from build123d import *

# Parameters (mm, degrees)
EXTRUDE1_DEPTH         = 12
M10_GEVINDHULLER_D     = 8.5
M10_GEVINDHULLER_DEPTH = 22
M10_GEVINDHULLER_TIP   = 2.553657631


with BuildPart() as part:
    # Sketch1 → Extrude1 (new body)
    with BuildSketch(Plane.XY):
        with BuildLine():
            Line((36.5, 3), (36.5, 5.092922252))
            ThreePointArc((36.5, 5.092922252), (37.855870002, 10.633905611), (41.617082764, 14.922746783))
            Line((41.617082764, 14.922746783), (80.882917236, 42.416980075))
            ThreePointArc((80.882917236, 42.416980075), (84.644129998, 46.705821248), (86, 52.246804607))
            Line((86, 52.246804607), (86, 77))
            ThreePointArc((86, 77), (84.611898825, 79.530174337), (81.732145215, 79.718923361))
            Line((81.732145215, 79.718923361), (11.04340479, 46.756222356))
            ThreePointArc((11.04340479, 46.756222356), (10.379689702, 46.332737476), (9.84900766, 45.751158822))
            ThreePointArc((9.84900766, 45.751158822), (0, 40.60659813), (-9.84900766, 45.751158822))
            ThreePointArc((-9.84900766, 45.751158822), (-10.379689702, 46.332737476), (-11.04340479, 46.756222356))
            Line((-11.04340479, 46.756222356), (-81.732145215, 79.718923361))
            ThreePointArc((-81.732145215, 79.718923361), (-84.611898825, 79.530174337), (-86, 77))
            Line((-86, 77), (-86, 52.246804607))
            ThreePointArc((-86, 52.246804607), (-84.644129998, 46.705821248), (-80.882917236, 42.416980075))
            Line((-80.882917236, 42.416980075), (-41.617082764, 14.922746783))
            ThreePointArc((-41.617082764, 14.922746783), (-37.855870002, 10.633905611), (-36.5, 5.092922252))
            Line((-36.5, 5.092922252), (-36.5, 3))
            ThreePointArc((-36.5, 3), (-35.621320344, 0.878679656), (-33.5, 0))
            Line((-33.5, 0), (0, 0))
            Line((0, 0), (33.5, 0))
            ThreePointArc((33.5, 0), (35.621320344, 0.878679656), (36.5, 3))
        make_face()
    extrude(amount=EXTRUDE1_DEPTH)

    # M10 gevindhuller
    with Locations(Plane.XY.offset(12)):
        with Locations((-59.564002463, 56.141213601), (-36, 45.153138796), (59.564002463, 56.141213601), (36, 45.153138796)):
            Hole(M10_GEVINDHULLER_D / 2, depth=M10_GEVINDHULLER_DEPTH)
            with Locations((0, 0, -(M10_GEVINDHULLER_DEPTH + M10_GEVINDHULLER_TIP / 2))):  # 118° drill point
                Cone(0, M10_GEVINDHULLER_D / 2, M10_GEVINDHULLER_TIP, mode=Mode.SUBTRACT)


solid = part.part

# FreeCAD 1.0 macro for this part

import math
import FreeCAD as App
import Part
import Sketcher
from FreeCAD import Vector
Q = App.Units.Quantity

doc = App.newDocument("Part")
body = doc.addObject("PartDesign::Body", "Body")

# Sketch on XY plane
sketch1 = body.newObject("Sketcher::SketchObject", "Sketch")
sketch1.AttachmentSupport = (doc.getObject("XY_Plane"), [""])
sketch1.MapMode = "FlatFace"
sketch1.addGeometry([
    Part.LineSegment(Vector(36.5, 3, 0), Vector(36.5, 5.1, 0)),  # 0
    Part.ArcOfCircle(Part.Circle(Vector(48.5, 5.1, 0), Vector(0, 0, 1), 12), math.radians(125), math.radians(180)),  # 1
    Part.LineSegment(Vector(41.6, 14.9, 0), Vector(80.9, 42.4, 0)),  # 2
    Part.ArcOfCircle(Part.Circle(Vector(74, 52.2, 0), Vector(0, 0, 1), 12), math.radians(-55), math.radians(0)),  # 3
    Part.LineSegment(Vector(86, 52.2, 0), Vector(86, 77, 0)),  # 4
    Part.ArcOfCircle(Part.Circle(Vector(83, 77, 0), Vector(0, 0, 1), 3), math.radians(0), math.radians(115)),  # 5
    Part.LineSegment(Vector(81.7, 79.7, 0), Vector(11, 46.8, 0)),  # 6
    Part.ArcOfCircle(Part.Circle(Vector(12.3, 44, 0), Vector(0, 0, 1), 3), math.radians(115), math.radians(145)),  # 7
    Part.ArcOfCircle(Part.Circle(Vector(0, 52.6, 0), Vector(0, 0, 1), 12), math.radians(-145), math.radians(-35)),  # 8
    Part.ArcOfCircle(Part.Circle(Vector(-12.3, 44, 0), Vector(0, 0, 1), 3), math.radians(35), math.radians(65)),  # 9
    Part.LineSegment(Vector(-11, 46.8, 0), Vector(-81.7, 79.7, 0)),  # 10
    Part.ArcOfCircle(Part.Circle(Vector(-83, 77, 0), Vector(0, 0, 1), 3), math.radians(65), math.radians(180)),  # 11
    Part.LineSegment(Vector(-86, 77, 0), Vector(-86, 52.2, 0)),  # 12
    Part.ArcOfCircle(Part.Circle(Vector(-74, 52.2, 0), Vector(0, 0, 1), 12), math.radians(-180), math.radians(-125)),  # 13
    Part.LineSegment(Vector(-80.9, 42.4, 0), Vector(-41.6, 14.9, 0)),  # 14
    Part.ArcOfCircle(Part.Circle(Vector(-48.5, 5.1, 0), Vector(0, 0, 1), 12), math.radians(0), math.radians(55)),  # 15
    Part.LineSegment(Vector(-36.5, 5.1, 0), Vector(-36.5, 3, 0)),  # 16
    Part.ArcOfCircle(Part.Circle(Vector(-33.5, 3, 0), Vector(0, 0, 1), 3), math.radians(180), math.radians(270)),  # 17
    Part.LineSegment(Vector(-33.5, 0, 0), Vector(33.5, 0, 0)),  # 18
    Part.ArcOfCircle(Part.Circle(Vector(33.5, 3, 0), Vector(0, 0, 1), 3), math.radians(-90), math.radians(0)),  # 19
], False)
sketch1.addConstraint([
    Sketcher.Constraint("Tangent", 0, 2, 1, 2),
    Sketcher.Constraint("Tangent", 1, 1, 2, 1),
    Sketcher.Constraint("Tangent", 2, 2, 3, 1),
    Sketcher.Constraint("Tangent", 3, 2, 4, 1),
    Sketcher.Constraint("Tangent", 4, 2, 5, 1),
    Sketcher.Constraint("Tangent", 5, 2, 6, 1),
    Sketcher.Constraint("Tangent", 6, 2, 7, 1),
    Sketcher.Constraint("Tangent", 7, 2, 8, 2),
    Sketcher.Constraint("Tangent", 8, 1, 9, 1),
    Sketcher.Constraint("Tangent", 9, 2, 10, 1),
    Sketcher.Constraint("Tangent", 10, 2, 11, 1),
    Sketcher.Constraint("Tangent", 11, 2, 12, 1),
    Sketcher.Constraint("Tangent", 12, 2, 13, 1),
    Sketcher.Constraint("Tangent", 13, 2, 14, 1),
    Sketcher.Constraint("Tangent", 14, 2, 15, 2),
    Sketcher.Constraint("Tangent", 15, 1, 16, 1),
    Sketcher.Constraint("Tangent", 16, 2, 17, 1),
    Sketcher.Constraint("Tangent", 17, 2, 18, 1),
    Sketcher.Constraint("Tangent", 18, 2, 19, 1),
    Sketcher.Constraint("Tangent", 19, 2, 0, 1),
    Sketcher.Constraint("Vertical", 0),
    Sketcher.Constraint("Vertical", 4),
    Sketcher.Constraint("Vertical", 12),
    Sketcher.Constraint("Vertical", 16),
    Sketcher.Constraint("Horizontal", 18),
    Sketcher.Constraint("Equal", 1, 3),
    Sketcher.Constraint("Equal", 5, 7),
    Sketcher.Constraint("Equal", 3, 8),
    Sketcher.Constraint("Equal", 7, 9),
    Sketcher.Constraint("Equal", 9, 11),
    Sketcher.Constraint("Equal", 8, 13),
    Sketcher.Constraint("Equal", 13, 15),
    Sketcher.Constraint("Equal", 11, 17),
    Sketcher.Constraint("Equal", 17, 19),
    Sketcher.Constraint("Symmetric", 17, 2, 18, 2, -1, 1),
    Sketcher.Constraint("Symmetric", 7, 3, 9, 3, -2),
    Sketcher.Constraint("Symmetric", 5, 3, 11, 3, -2),
    Sketcher.Constraint("Symmetric", 2, 2, 13, 2, -2),
    Sketcher.Constraint("Radius", 1, Q("12 mm")),
    Sketcher.Constraint("Radius", 5, Q("3 mm")),
    Sketcher.Constraint("DistanceX", 18, 1, 18, 2, Q("67 mm")),
    Sketcher.Constraint("Angle", 2, Q("35 deg")),
    Sketcher.Constraint("Angle", 6, Q("-155 deg")),
    Sketcher.Constraint("DistanceX", -1, 1, 3, 3, Q("74 mm")),
    Sketcher.Constraint("DistanceY", -1, 1, 5, 3, Q("77 mm")),
    Sketcher.Constraint("DistanceY", -1, 1, 7, 3, Q("44.037299 mm")),
    Sketcher.Constraint("DistanceY", 0, 2, 6, 2, Q("41.6633 mm")),
])
pad1 = body.newObject("PartDesign::Pad", "Pad")
pad1.Profile = sketch1
pad1.Length = 12

# Sketch on XY plane
sketch2 = body.newObject("Sketcher::SketchObject", "Sketch001")
sketch2.AttachmentSupport = (doc.getObject("XY_Plane"), [""])
sketch2.MapMode = "FlatFace"
sketch2.AttachmentOffset = App.Placement(Vector(0, 0, 12), App.Rotation())
sketch2.addGeometry([
    Part.Circle(Vector(-59.6, 56.1, 0), Vector(0, 0, 1), 4.2),
    Part.Circle(Vector(-36, 45.2, 0), Vector(0, 0, 1), 4.2),
    Part.Circle(Vector(59.6, 56.1, 0), Vector(0, 0, 1), 4.2),
    Part.Circle(Vector(36, 45.2, 0), Vector(0, 0, 1), 4.2),
], False)
sketch2.addConstraint([
    Sketcher.Constraint("Equal", 0, 1),
    Sketcher.Constraint("Equal", 1, 2),
    Sketcher.Constraint("Equal", 2, 3),
    Sketcher.Constraint("Symmetric", 0, 3, 2, 3, -2),
    Sketcher.Constraint("Symmetric", 1, 3, 3, 3, -2),
    Sketcher.Constraint("Diameter", 0, Q("8.5 mm")),
    Sketcher.Constraint("DistanceX", 1, 3, -1, 1, Q("36 mm")),
    Sketcher.Constraint("DistanceY", -1, 1, 1, 3, Q("45.153139 mm")),
    Sketcher.Constraint("DistanceX", 0, 3, -1, 1, Q("59.564002 mm")),
    Sketcher.Constraint("DistanceY", -1, 1, 0, 3, Q("56.141214 mm")),
])
doc.recompute()
hole = body.newObject("PartDesign::Hole", "Hole")
hole.Profile = sketch2
hole.ThreadType = "None"
hole.Diameter = 8.5
hole.DepthType = "Dimension"
hole.Depth = 22
hole.DrillPoint = "Angled"
hole.DrillPointAngle = 118

doc.recompute()
